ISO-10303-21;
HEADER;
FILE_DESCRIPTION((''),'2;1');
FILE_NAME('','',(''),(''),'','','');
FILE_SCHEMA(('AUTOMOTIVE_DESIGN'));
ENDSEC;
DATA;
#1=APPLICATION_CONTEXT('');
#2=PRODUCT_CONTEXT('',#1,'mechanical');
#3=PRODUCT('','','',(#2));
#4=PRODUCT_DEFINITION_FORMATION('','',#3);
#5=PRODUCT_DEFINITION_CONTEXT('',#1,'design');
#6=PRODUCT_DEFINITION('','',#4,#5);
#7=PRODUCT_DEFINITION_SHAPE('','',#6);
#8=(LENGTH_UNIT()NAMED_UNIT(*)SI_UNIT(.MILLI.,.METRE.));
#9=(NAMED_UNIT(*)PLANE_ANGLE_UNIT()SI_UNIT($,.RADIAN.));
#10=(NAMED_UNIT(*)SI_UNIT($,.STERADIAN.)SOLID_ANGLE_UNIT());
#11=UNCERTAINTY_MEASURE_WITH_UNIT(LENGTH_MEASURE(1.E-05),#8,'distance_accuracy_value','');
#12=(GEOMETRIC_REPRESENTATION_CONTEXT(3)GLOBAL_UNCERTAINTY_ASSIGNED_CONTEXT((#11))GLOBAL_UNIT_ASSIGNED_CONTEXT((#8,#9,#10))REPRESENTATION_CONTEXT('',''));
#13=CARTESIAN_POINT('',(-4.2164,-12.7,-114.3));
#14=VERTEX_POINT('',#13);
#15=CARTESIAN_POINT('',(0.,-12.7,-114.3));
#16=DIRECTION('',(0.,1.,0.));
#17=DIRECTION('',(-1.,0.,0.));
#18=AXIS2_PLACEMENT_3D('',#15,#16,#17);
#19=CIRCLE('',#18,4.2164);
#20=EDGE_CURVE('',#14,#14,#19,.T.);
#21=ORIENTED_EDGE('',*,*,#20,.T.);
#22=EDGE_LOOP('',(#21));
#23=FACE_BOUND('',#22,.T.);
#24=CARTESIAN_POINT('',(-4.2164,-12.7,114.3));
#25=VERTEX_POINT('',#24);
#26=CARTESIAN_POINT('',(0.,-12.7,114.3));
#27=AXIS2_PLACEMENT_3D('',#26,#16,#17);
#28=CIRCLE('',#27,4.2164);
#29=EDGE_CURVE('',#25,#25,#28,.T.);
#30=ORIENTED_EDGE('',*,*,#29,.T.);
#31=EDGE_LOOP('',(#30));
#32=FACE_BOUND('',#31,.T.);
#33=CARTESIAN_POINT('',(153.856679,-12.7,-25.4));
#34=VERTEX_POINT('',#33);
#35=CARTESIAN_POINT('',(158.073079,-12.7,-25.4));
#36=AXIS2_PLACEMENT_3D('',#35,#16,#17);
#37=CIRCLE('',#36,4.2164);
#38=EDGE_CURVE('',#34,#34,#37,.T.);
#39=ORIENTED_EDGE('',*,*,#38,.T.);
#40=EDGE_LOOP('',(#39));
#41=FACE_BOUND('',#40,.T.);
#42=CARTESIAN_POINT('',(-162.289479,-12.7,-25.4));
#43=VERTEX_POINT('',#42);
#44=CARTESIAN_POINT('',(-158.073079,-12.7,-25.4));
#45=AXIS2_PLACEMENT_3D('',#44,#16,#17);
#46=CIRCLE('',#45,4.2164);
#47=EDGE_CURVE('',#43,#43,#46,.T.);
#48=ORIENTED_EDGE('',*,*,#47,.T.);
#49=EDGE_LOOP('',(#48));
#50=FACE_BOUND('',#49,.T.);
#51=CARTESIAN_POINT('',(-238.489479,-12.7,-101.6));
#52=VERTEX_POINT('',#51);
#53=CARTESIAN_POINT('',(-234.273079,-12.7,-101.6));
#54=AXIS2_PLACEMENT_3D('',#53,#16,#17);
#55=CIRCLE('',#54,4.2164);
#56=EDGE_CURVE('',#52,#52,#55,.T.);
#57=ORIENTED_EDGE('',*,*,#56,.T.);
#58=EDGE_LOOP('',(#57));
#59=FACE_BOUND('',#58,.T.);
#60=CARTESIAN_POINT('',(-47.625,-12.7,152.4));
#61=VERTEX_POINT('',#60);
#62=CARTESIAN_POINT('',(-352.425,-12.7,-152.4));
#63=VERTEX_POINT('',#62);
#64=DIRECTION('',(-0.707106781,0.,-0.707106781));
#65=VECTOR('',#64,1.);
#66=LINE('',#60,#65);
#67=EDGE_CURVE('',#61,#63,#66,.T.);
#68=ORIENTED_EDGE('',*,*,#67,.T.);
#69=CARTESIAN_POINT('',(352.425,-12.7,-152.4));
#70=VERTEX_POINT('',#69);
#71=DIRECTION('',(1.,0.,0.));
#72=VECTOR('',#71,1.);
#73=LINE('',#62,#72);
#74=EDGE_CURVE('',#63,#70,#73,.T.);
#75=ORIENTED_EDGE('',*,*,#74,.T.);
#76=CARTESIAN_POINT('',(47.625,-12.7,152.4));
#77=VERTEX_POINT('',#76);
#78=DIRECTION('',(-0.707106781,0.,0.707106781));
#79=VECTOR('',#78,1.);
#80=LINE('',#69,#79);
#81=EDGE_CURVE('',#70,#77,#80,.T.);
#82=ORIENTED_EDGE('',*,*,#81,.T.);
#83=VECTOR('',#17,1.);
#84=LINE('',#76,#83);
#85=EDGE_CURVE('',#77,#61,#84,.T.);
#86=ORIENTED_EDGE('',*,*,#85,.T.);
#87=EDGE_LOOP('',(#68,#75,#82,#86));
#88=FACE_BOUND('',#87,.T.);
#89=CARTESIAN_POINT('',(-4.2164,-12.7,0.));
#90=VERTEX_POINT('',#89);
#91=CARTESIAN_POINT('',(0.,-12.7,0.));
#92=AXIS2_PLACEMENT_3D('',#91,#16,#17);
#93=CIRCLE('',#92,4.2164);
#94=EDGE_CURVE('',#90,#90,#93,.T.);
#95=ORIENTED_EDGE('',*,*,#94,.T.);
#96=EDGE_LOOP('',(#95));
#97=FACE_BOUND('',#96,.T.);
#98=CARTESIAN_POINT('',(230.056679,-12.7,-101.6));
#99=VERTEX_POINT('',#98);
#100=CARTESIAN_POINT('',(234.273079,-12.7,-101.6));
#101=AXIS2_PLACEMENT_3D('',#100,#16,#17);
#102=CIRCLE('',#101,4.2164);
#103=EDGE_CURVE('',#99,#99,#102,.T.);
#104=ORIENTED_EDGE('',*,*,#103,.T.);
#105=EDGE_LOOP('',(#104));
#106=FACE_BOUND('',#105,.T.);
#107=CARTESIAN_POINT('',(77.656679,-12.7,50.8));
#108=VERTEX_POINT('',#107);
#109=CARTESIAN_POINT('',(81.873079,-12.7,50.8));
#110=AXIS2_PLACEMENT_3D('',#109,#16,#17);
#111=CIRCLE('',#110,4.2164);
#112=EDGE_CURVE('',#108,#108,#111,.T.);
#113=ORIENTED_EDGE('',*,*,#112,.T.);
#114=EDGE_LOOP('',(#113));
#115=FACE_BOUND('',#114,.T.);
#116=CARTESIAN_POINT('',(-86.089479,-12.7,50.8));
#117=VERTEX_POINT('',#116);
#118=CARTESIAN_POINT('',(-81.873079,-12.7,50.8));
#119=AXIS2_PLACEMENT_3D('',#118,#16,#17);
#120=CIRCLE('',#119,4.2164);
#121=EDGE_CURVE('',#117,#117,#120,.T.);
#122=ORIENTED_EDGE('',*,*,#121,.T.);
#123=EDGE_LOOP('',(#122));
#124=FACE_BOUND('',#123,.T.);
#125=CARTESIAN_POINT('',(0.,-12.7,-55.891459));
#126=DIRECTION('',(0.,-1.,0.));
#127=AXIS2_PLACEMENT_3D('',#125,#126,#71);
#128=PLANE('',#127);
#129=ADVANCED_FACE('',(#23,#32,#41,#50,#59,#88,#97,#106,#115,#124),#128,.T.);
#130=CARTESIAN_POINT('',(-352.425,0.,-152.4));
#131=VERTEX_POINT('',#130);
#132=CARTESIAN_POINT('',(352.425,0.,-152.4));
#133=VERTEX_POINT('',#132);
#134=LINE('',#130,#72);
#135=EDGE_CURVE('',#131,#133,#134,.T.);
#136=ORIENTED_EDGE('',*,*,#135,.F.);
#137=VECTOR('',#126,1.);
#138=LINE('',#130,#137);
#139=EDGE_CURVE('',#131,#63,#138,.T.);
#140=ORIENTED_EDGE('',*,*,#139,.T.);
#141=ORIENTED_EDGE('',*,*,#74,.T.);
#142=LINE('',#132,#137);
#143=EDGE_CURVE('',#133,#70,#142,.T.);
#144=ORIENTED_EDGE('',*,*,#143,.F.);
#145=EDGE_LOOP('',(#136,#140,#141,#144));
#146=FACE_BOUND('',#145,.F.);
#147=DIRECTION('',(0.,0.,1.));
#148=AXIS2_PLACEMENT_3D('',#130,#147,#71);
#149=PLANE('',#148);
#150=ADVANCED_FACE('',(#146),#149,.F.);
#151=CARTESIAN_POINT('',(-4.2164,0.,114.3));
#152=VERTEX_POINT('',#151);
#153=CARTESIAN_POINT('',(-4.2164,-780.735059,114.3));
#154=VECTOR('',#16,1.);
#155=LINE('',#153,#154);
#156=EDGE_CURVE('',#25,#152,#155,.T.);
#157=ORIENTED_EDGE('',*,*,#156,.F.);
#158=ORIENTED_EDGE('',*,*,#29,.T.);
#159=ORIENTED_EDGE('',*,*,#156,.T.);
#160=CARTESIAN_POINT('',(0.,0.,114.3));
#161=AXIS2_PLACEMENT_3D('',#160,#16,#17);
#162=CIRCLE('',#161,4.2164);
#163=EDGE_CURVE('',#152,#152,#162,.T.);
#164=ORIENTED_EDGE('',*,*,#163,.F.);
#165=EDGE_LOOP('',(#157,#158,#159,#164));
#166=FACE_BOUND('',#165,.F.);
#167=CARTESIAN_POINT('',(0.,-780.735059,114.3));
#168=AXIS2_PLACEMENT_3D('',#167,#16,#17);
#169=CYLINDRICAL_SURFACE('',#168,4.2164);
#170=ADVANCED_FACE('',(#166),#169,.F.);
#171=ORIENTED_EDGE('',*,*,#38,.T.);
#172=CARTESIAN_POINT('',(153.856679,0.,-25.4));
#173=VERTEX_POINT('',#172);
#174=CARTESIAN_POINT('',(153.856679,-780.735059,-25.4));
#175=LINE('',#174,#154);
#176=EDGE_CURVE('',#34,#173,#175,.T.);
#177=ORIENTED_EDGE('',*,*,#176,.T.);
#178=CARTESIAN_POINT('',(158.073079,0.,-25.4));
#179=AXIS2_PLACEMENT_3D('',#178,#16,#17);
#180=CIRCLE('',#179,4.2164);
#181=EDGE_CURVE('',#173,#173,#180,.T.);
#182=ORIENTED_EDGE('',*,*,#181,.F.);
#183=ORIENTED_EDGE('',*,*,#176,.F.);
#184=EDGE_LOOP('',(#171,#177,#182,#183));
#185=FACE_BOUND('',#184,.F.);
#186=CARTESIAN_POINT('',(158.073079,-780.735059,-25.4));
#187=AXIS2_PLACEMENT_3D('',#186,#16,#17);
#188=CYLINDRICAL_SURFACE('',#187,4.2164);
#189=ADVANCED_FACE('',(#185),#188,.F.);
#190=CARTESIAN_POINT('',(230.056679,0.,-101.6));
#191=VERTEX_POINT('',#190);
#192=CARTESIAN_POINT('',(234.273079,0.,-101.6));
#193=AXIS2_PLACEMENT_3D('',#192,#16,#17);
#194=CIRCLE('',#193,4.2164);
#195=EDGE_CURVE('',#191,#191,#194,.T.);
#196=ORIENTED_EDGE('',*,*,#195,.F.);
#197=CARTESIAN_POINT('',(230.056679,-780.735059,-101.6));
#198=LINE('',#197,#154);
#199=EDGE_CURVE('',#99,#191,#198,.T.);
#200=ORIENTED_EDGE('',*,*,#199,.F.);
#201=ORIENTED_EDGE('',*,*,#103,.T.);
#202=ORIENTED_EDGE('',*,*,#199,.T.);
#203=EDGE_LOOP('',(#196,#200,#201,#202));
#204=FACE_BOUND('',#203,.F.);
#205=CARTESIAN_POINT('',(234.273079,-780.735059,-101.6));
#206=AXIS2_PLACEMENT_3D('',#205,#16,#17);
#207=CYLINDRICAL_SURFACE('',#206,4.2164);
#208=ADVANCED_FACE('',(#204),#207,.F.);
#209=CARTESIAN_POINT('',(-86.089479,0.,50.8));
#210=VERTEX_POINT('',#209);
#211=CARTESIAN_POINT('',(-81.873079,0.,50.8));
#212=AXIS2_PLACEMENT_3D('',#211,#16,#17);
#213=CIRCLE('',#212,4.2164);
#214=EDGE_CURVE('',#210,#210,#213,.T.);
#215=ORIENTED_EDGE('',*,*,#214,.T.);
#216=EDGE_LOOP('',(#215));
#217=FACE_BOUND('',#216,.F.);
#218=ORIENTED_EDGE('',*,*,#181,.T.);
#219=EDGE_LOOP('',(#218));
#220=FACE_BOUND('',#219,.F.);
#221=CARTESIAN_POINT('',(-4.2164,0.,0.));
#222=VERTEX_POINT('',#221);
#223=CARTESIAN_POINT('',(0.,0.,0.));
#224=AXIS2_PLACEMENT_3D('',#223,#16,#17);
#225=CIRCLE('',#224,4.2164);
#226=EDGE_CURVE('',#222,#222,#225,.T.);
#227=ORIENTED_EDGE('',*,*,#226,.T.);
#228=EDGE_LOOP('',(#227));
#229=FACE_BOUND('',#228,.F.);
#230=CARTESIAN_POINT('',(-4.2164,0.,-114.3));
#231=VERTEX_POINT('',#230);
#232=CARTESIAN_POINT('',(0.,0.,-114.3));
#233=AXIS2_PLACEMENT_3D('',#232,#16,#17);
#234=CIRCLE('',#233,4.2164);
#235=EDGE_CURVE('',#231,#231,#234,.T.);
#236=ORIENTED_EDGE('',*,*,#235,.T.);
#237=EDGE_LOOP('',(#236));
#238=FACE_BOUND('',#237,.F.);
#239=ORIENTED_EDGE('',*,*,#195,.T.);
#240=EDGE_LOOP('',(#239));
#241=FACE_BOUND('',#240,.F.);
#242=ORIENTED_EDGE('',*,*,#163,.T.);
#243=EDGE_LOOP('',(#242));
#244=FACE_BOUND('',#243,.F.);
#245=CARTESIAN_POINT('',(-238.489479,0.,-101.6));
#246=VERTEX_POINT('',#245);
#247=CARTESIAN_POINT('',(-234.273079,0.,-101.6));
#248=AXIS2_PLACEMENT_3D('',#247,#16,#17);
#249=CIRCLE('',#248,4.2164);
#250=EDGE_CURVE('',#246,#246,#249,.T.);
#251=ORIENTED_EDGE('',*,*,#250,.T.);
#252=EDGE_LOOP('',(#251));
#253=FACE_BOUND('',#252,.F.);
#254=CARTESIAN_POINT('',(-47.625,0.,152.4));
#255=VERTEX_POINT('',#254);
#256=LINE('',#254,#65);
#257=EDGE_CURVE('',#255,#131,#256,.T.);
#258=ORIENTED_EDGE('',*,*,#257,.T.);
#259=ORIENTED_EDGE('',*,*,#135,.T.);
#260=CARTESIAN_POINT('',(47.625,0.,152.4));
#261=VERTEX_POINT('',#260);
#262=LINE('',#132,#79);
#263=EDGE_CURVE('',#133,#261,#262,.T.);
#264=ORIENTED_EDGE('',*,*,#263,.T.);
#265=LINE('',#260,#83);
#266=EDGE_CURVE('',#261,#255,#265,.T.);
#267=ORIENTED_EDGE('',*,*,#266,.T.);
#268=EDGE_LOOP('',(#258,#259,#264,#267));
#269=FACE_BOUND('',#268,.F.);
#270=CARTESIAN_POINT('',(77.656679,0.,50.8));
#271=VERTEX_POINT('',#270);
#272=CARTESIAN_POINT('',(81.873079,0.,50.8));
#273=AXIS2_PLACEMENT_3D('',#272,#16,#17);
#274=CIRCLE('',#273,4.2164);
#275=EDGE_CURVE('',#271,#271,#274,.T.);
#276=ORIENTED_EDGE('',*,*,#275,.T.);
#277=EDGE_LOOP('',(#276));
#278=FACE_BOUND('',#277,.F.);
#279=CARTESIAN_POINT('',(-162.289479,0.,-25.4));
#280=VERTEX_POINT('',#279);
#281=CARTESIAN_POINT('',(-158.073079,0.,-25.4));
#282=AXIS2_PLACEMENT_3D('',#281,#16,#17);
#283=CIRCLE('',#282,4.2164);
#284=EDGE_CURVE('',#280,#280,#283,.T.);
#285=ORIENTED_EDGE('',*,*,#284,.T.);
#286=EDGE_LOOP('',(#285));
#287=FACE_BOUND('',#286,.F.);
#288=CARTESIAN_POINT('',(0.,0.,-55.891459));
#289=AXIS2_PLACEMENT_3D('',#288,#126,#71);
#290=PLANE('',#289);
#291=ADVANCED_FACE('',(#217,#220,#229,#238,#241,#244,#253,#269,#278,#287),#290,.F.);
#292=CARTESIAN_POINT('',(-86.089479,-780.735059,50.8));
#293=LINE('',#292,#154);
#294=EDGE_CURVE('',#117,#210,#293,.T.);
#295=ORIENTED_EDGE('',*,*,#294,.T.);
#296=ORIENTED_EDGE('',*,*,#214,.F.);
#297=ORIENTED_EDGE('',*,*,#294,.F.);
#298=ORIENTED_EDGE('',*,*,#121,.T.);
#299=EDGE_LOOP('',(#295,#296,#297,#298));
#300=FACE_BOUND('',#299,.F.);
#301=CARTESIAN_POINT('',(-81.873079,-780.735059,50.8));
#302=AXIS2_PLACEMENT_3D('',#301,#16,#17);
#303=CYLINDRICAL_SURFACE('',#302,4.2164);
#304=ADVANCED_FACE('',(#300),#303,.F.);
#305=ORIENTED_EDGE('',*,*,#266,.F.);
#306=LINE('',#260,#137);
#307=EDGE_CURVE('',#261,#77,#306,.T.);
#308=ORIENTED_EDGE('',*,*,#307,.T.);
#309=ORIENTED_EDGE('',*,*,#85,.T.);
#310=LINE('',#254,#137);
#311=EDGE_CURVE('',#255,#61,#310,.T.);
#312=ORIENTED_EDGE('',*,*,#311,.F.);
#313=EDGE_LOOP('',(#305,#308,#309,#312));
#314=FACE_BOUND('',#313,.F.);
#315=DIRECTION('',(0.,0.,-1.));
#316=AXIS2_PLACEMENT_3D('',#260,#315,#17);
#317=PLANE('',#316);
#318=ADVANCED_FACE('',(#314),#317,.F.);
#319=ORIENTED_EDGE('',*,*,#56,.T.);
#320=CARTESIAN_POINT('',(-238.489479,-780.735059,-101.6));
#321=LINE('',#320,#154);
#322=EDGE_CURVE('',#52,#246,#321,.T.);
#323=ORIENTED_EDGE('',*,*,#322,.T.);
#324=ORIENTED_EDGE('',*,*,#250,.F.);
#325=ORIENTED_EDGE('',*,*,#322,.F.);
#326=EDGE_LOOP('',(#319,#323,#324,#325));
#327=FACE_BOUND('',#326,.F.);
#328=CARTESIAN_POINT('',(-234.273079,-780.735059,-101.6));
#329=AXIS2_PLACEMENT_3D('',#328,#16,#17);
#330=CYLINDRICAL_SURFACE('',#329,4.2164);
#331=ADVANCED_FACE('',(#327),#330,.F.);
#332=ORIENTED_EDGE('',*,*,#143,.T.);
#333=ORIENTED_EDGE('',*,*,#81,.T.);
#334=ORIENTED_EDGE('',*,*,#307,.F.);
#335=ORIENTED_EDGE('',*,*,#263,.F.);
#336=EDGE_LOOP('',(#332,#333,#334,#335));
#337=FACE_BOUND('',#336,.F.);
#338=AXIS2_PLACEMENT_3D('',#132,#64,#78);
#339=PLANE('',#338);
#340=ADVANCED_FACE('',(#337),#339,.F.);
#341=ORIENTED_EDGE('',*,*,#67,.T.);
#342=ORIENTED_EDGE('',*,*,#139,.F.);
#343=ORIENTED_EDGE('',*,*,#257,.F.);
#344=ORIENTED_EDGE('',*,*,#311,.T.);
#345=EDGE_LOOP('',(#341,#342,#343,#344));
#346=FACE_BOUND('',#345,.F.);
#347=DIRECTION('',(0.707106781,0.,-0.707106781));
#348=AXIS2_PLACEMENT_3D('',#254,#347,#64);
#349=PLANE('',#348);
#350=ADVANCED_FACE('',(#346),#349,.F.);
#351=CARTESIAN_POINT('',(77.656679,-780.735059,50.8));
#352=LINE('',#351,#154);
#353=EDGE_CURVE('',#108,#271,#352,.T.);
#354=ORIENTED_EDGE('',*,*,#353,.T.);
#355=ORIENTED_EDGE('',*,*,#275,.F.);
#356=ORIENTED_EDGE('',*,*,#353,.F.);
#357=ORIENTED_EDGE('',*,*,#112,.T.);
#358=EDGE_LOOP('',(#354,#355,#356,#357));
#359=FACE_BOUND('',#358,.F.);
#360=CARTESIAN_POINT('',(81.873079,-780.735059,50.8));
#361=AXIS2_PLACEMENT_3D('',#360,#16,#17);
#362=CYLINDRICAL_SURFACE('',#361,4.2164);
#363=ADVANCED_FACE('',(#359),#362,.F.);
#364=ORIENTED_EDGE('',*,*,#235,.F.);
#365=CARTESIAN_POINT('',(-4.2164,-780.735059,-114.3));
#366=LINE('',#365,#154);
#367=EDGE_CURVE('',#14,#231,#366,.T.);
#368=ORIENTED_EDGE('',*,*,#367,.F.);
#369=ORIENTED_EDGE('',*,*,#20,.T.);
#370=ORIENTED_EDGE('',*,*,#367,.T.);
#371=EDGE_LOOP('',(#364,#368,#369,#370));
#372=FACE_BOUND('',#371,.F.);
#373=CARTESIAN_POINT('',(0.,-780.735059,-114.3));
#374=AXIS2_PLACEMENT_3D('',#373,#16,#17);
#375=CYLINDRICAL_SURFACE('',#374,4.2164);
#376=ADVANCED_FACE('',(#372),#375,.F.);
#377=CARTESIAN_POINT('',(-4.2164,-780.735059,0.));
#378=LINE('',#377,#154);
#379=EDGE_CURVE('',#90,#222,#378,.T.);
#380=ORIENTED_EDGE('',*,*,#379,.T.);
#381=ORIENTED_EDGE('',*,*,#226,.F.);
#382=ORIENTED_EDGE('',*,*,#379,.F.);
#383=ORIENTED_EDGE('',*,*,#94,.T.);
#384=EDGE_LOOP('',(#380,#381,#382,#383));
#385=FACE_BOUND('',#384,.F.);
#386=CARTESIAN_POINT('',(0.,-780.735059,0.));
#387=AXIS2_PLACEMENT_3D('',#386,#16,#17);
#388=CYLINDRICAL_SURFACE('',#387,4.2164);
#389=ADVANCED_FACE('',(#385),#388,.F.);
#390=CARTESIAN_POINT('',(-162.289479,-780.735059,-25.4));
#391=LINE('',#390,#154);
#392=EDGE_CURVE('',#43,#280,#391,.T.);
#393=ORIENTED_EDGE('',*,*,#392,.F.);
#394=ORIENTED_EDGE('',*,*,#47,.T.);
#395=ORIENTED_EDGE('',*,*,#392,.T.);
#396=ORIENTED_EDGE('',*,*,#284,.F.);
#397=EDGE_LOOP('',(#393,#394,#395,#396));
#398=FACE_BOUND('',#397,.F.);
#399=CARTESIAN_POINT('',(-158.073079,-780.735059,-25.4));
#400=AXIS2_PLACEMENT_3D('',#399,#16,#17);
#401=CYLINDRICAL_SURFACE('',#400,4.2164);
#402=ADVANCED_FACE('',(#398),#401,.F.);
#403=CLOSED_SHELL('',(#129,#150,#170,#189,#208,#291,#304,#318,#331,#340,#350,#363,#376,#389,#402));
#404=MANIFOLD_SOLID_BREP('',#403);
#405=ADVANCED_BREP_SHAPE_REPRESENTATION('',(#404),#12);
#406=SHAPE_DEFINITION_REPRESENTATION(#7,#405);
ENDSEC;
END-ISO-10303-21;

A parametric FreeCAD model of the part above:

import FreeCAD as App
import Part
import Sketcher
from FreeCAD import Vector
Q = App.Units.Quantity

doc = App.newDocument("Part")
params = doc.addObject("Spreadsheet::Sheet", "Params")
for row, (alias, value) in enumerate([
    ("sketch1_width", "3.75 in"),
    ("pad1_length", "0.5 in"),
    ("sketch2_diameter", "0.332 in"),
    ("hole_diameter", "0.332 in"),
], start=1):
    params.set(f"A{row}", alias)
    params.set(f"B{row}", "=" + value)
    params.setAlias(f"B{row}", alias)

body = doc.addObject("PartDesign::Body", "Body")

sketch1 = body.newObject("Sketcher::SketchObject", "Sketch")
sketch1.AttachmentSupport = (doc.getObject("XZ_Plane"), [""])
sketch1.MapMode = "FlatFace"
sketch1.addGeometry([
    Part.LineSegment(Vector(48, 152, 0), Vector(-48, 152, 0)),
    Part.LineSegment(Vector(-48, 152, 0), Vector(-352, -152, 0)),
    Part.LineSegment(Vector(-352, -152, 0), Vector(352, -152, 0)),
    Part.LineSegment(Vector(352, -152, 0), Vector(48, 152, 0)),
], False)
sketch1.addConstraint([
    Sketcher.Constraint("Coincident", 0, 2, 1, 1),
    Sketcher.Constraint("Coincident", 1, 2, 2, 1),
    Sketcher.Constraint("Coincident", 2, 2, 3, 1),
    Sketcher.Constraint("Coincident", 3, 2, 0, 1),
    Sketcher.Constraint("Horizontal", 0),
    Sketcher.Constraint("Horizontal", 2),
    Sketcher.Constraint("Perpendicular", 1, 3),
    Sketcher.Constraint("Equal", 1, 3),
    Sketcher.Constraint("DistanceY", -1, 1, 0, 2, Q("6 in")),
    Sketcher.Constraint("DistanceY", 1, 2, -1, 1, Q("6 in")),
    Sketcher.Constraint("DistanceX", 0, 2, 0, 1, Q("3.75 in")),
    Sketcher.Constraint("DistanceX", 0, 2, -1, 1, Q("1.875 in")),
])
sketch1.setExpression("Constraints[10]", "Params.sketch1_width")
pad1 = body.newObject("PartDesign::Pad", "Pad")
pad1.Profile = sketch1
pad1.setExpression("Length", "Params.pad1_length")

sketch2 = body.newObject("Sketcher::SketchObject", "Sketch001")
sketch2.AttachmentSupport = (doc.getObject("XZ_Plane"), [""])
sketch2.MapMode = "FlatFace"
sketch2.AttachmentOffset = App.Placement(Vector(0, 0, 0.5 * 25.4), App.Rotation())
sketch2.addGeometry([
    Part.Circle(Vector(0, 114.3, 0), Vector(0, 0, 1), 4.2),
    Part.Circle(Vector(-81.9, 50.8, 0), Vector(0, 0, 1), 4.2),
    Part.Circle(Vector(-158.1, -25.4, 0), Vector(0, 0, 1), 4.2),
    Part.Circle(Vector(-234.3, -101.6, 0), Vector(0, 0, 1), 4.2),
    Part.Circle(Vector(0, -114.3, 0), Vector(0, 0, 1), 4.2),
    Part.Circle(Vector(234.3, -101.6, 0), Vector(0, 0, 1), 4.2),
    Part.Circle(Vector(158.1, -25.4, 0), Vector(0, 0, 1), 4.2),
    Part.Circle(Vector(81.9, 50.8, 0), Vector(0, 0, 1), 4.2),
    Part.Circle(Vector(0, 0, 0), Vector(0, 0, 1), 4.2),
], False)
sketch2.addConstraint([
    Sketcher.Constraint("Coincident", 8, 3, -1, 1),
    Sketcher.Constraint("Equal", 0, 1),
    Sketcher.Constraint("Equal", 1, 2),
    Sketcher.Constraint("Equal", 2, 3),
    Sketcher.Constraint("Equal", 3, 4),
    Sketcher.Constraint("Equal", 4, 5),
    Sketcher.Constraint("Equal", 5, 6),
    Sketcher.Constraint("Equal", 6, 7),
    Sketcher.Constraint("Equal", 7, 8),
    Sketcher.Constraint("Symmetric", 0, 3, 4, 3, -1, 1),
    Sketcher.Constraint("Symmetric", 3, 3, 5, 3, -2),
    Sketcher.Constraint("Symmetric", 2, 3, 6, 3, -2),
    Sketcher.Constraint("Symmetric", 1, 3, 7, 3, -2),
    Sketcher.Constraint("PointOnObject", 0, 3, -2),
    Sketcher.Constraint("Diameter", 0, Q("0.332 in")),
    Sketcher.Constraint("DistanceY", -1, 1, 1, 3, Q("2 in")),
    Sketcher.Constraint("DistanceY", 2, 3, -1, 1, Q("1 in")),
    Sketcher.Constraint("DistanceY", 3, 3, -1, 1, Q("4 in")),
    Sketcher.Constraint("DistanceX", 2, 3, 1, 3, Q("3 in")),
    Sketcher.Constraint("DistanceX", 3, 3, 2, 3, Q("3 in")),
    Sketcher.Constraint("DistanceY", 4, 3, 0, 3, Q("9 in")),
    Sketcher.Constraint("DistanceX", 1, 3, -1, 1, 81.873079),
])
sketch2.setExpression("Constraints[14]", "Params.sketch2_diameter")
doc.recompute()
hole = body.newObject("PartDesign::Hole", "Hole")
hole.Profile = sketch2
hole.ThreadType = "None"
hole.setExpression("Diameter", "Params.hole_diameter")
hole.DepthType = "ThroughAll"

doc.recompute()
